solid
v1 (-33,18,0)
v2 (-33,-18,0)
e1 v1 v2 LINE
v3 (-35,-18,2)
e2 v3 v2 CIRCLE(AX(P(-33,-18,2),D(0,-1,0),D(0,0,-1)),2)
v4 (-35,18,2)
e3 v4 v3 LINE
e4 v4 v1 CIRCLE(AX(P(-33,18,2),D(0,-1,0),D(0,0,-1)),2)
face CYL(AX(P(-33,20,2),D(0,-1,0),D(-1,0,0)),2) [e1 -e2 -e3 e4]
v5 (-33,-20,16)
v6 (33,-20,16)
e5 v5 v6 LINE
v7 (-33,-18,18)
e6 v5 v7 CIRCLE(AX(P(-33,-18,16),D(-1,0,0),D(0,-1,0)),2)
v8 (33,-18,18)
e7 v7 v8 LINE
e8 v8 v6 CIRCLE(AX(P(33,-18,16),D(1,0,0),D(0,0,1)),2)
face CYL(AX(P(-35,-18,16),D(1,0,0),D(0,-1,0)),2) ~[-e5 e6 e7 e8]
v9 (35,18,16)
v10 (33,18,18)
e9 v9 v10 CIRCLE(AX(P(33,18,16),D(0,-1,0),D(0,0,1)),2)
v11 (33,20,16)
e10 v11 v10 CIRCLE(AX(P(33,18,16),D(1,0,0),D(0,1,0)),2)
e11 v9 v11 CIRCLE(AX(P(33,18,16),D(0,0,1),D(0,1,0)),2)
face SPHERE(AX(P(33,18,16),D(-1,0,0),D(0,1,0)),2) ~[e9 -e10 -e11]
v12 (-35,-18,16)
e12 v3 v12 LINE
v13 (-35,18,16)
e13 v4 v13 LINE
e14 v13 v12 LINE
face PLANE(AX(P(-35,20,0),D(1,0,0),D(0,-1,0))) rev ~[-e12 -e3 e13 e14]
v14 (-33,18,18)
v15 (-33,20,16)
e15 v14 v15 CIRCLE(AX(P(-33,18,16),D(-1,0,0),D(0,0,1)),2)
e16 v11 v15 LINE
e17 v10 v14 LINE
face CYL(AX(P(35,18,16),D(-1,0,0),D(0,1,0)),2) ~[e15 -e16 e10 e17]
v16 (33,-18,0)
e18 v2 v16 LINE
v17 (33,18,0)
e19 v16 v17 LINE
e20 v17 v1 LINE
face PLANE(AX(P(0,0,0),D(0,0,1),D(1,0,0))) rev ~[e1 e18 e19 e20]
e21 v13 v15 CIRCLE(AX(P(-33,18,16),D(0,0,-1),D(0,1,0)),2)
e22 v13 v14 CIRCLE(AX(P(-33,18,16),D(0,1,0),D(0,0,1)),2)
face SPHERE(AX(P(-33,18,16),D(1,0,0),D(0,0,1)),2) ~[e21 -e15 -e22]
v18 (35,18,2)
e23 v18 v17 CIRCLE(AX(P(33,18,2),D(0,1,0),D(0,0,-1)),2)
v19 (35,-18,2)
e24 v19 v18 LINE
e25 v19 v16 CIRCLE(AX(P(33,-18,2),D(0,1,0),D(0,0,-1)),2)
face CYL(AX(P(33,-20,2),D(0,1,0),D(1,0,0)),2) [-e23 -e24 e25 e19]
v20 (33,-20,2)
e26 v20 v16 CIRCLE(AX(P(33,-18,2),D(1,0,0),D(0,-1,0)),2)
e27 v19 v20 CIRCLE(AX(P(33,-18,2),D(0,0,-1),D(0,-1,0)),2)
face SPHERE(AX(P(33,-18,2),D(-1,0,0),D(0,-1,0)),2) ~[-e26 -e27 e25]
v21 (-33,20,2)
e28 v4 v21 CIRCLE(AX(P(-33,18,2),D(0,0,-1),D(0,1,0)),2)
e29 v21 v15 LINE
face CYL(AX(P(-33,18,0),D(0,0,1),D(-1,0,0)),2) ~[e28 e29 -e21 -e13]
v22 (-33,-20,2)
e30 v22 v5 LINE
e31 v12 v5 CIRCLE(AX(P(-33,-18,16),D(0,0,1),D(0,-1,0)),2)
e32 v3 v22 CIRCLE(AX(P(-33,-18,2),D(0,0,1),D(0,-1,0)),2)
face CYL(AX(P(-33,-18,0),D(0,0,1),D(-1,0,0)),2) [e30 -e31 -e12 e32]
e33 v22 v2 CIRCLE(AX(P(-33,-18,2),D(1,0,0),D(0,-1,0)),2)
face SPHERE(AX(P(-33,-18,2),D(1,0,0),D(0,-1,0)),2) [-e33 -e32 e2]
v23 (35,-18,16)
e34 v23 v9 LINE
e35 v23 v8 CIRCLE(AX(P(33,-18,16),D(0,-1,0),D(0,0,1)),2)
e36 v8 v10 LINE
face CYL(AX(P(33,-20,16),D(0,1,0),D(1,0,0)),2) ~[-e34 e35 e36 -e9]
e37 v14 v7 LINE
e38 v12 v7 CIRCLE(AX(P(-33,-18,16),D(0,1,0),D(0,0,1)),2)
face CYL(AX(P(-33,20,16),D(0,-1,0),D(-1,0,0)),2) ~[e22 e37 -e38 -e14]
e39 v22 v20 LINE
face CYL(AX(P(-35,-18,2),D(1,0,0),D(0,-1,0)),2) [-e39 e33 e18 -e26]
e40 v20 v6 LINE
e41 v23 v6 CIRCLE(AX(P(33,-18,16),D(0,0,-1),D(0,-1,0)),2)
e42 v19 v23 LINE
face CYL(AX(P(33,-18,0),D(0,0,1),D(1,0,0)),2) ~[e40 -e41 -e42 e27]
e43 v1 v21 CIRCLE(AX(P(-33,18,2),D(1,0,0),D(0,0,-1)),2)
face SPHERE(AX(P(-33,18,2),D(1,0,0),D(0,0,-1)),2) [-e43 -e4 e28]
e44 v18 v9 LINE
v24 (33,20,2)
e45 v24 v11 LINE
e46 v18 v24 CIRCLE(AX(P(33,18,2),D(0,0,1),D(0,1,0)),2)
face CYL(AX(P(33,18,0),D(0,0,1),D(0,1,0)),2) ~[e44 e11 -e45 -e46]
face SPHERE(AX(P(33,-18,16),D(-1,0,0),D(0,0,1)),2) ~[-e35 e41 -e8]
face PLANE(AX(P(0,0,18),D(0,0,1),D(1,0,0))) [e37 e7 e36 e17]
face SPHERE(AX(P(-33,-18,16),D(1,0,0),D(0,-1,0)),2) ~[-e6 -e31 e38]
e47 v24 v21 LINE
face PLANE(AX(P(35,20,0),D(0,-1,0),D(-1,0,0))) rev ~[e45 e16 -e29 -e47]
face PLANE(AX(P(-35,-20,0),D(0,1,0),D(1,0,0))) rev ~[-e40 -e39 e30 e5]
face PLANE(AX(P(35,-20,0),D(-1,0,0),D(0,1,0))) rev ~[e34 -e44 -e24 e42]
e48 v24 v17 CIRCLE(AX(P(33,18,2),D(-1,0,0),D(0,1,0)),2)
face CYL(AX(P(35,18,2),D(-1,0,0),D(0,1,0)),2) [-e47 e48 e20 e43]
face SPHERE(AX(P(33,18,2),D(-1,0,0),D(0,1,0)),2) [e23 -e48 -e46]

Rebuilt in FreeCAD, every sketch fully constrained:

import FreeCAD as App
import Part
import Sketcher
from FreeCAD import Vector
Q = App.Units.Quantity

doc = App.newDocument("Part")
body = doc.addObject("PartDesign::Body", "Body")

# Sketch on XY plane
sketch1 = body.newObject("Sketcher::SketchObject", "Sketch")
sketch1.AttachmentSupport = (doc.getObject("XY_Plane"), [""])
sketch1.MapMode = "FlatFace"
sketch1.addGeometry([
    Part.LineSegment(Vector(-35, 20, 0), Vector(-35, -20, 0)),
    Part.LineSegment(Vector(-35, -20, 0), Vector(35, -20, 0)),
    Part.LineSegment(Vector(35, -20, 0), Vector(35, 20, 0)),
    Part.LineSegment(Vector(35, 20, 0), Vector(-35, 20, 0)),
], False)
sketch1.addConstraint([
    Sketcher.Constraint("Coincident", 0, 2, 1, 1),
    Sketcher.Constraint("Coincident", 1, 2, 2, 1),
    Sketcher.Constraint("Coincident", 2, 2, 3, 1),
    Sketcher.Constraint("Coincident", 3, 2, 0, 1),
    Sketcher.Constraint("Vertical", 0),
    Sketcher.Constraint("Horizontal", 1),
    Sketcher.Constraint("Vertical", 2),
    Sketcher.Constraint("Horizontal", 3),
    Sketcher.Constraint("Symmetric", 0, 2, 2, 2, -1, 1),
    Sketcher.Constraint("DistanceX", 1, 1, 1, 2, Q("70 mm")),
    Sketcher.Constraint("DistanceY", 0, 2, 0, 1, Q("40 mm")),
])
pad1 = body.newObject("PartDesign::Pad", "Pad")
pad1.Profile = sketch1
pad1.Length = 18
doc.recompute()

fillet = body.newObject("PartDesign::Fillet", "Fillet")
fillet.Base = (pad1, ["Edge1"])
fillet.UseAllEdges = True
fillet.Radius = 2

doc.recompute()
